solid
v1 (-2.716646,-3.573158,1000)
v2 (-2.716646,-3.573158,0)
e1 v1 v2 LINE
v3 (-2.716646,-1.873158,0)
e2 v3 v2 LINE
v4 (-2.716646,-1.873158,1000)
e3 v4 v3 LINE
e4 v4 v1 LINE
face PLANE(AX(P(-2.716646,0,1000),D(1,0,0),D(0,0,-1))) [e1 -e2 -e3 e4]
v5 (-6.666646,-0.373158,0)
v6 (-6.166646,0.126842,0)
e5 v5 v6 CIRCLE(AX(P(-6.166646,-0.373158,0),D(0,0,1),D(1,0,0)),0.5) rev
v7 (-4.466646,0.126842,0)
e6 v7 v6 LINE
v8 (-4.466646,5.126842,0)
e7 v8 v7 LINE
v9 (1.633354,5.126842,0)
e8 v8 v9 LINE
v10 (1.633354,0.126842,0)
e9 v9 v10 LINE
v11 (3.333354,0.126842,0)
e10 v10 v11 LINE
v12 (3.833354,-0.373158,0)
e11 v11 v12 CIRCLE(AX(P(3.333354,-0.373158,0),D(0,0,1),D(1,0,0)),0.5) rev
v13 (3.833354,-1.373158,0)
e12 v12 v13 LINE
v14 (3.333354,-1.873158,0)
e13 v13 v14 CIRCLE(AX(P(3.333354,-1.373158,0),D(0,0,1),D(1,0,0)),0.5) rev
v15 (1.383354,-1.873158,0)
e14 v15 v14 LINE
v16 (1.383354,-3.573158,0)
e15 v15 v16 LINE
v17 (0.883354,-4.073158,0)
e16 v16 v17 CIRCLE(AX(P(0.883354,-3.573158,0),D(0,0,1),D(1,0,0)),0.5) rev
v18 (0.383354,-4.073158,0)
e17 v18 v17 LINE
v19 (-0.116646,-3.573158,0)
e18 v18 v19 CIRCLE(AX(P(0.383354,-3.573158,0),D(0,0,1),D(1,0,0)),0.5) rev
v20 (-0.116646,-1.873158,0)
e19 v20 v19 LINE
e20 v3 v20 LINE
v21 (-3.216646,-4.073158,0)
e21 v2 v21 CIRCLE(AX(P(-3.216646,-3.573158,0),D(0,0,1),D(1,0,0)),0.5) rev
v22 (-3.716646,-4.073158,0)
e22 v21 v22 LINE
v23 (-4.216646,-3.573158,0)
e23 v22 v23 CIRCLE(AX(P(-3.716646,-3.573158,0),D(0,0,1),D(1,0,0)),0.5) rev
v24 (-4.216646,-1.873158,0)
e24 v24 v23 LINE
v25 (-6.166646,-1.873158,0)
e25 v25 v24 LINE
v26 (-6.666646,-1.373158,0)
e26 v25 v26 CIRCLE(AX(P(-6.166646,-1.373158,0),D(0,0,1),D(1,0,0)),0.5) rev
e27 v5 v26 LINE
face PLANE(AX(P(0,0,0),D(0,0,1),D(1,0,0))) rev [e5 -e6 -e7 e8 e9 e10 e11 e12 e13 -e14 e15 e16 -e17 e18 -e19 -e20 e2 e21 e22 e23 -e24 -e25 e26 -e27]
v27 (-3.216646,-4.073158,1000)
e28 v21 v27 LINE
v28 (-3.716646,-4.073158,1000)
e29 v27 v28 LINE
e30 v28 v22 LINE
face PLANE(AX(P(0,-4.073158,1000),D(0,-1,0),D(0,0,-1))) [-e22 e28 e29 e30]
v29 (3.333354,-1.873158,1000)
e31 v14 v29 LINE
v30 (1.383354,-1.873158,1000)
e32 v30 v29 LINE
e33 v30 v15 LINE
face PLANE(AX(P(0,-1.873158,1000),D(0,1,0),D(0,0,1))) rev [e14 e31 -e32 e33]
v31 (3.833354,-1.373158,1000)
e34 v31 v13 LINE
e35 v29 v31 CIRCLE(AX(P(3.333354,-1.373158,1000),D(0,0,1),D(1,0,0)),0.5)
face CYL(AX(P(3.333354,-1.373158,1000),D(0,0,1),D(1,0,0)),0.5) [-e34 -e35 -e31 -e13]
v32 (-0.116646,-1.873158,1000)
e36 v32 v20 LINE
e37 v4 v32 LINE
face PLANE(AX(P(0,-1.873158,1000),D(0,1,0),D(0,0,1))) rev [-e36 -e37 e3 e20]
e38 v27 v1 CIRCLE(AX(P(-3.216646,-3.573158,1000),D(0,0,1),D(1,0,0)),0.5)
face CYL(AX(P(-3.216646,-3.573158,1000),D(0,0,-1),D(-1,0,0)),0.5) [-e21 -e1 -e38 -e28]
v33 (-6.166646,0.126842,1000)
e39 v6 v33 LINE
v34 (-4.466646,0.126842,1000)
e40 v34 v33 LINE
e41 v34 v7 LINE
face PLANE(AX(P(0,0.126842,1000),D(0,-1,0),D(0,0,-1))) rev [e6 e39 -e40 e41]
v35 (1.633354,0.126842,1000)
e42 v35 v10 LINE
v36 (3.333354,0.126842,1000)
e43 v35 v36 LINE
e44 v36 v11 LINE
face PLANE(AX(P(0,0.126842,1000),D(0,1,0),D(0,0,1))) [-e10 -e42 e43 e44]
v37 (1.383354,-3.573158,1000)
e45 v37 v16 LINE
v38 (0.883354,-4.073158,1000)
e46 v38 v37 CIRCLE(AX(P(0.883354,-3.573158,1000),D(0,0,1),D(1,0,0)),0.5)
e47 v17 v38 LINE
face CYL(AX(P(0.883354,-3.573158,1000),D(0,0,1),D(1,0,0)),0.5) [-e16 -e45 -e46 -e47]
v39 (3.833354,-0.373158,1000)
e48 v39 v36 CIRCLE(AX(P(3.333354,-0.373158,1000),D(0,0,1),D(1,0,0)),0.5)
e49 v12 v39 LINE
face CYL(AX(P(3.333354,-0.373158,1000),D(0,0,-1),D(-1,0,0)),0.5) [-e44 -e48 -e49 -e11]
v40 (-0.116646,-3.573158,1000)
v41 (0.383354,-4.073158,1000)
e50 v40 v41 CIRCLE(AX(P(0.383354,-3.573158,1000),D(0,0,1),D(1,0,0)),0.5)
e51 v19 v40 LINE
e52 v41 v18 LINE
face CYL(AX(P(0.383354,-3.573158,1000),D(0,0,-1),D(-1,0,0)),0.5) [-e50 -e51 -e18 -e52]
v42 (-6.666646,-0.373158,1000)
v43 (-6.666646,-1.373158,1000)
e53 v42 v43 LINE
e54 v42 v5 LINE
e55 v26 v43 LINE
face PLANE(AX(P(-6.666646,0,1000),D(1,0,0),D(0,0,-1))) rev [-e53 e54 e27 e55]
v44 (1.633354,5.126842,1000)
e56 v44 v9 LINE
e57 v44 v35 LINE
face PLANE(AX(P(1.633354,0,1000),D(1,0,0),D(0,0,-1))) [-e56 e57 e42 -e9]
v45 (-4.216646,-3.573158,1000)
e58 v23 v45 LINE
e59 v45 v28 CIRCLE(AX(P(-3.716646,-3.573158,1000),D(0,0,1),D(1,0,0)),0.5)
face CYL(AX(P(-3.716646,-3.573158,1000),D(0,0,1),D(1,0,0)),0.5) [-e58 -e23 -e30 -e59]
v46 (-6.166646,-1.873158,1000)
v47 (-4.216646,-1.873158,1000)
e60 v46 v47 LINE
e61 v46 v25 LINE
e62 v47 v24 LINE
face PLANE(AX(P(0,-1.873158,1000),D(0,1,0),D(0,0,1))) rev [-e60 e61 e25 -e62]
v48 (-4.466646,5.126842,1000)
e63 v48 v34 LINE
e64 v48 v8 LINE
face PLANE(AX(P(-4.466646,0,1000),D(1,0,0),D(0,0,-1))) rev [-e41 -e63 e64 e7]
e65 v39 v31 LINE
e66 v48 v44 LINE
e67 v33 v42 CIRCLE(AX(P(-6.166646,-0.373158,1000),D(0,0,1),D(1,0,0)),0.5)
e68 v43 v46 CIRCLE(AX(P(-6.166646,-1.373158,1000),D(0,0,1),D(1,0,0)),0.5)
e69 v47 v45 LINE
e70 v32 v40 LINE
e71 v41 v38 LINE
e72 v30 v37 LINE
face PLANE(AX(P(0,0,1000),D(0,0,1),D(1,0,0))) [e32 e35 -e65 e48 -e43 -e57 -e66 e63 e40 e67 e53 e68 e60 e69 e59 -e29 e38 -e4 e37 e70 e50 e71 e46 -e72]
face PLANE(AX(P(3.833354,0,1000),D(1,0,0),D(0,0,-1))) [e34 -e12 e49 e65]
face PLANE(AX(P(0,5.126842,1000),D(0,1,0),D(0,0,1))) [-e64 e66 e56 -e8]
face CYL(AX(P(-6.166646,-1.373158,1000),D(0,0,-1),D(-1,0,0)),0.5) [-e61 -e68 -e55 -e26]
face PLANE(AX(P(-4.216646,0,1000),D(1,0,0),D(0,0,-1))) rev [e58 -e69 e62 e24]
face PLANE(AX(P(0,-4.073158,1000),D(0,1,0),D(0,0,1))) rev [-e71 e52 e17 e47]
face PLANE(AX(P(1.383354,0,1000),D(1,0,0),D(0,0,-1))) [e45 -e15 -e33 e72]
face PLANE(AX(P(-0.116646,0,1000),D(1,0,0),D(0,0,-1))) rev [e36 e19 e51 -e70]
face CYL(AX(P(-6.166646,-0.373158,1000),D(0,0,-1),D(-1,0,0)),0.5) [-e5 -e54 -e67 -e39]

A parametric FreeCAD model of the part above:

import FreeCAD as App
import Part
import Sketcher
from FreeCAD import Vector


def edges_at(feature, points):
    """Names of the edges that pass closest to the given points."""
    edges = feature.Shape.Edges
    near = lambda p: min(range(len(edges)), key=lambda i: edges[i].distToShape(Part.Vertex(*p))[0])
    return sorted({f"Edge{near(p) + 1}" for p in points})

doc = App.newDocument("Part")
body = doc.addObject("PartDesign::Body", "Body")

# Sketch on XY plane
sketch1 = body.newObject("Sketcher::SketchObject", "Sketch")
sketch1.AttachmentSupport = (doc.getObject("XY_Plane"), [""])
sketch1.MapMode = "FlatFace"
sketch1.addGeometry([
    Part.LineSegment(Vector(-4.216646, -1.873158, 0), Vector(-4.216646, -4.073158, 0)),  # 0
    Part.LineSegment(Vector(-4.216646, -4.073158, 0), Vector(-2.716646, -4.073158, 0)),  # 1
    Part.LineSegment(Vector(-2.716646, -4.073158, 0), Vector(-2.716646, -1.873158, 0)),  # 2
    Part.LineSegment(Vector(-2.716646, -1.873158, 0), Vector(-0.116646, -1.873158, 0)),  # 3
    Part.LineSegment(Vector(-0.116646, -1.873158, 0), Vector(-0.116646, -4.073158, 0)),  # 4
    Part.LineSegment(Vector(-0.116646, -4.073158, 0), Vector(1.383354, -4.073158, 0)),  # 5
    Part.LineSegment(Vector(1.383354, -4.073158, 0), Vector(1.383354, -1.873158, 0)),  # 6
    Part.LineSegment(Vector(1.383354, -1.873158, 0), Vector(3.833354, -1.873158, 0)),  # 7
    Part.LineSegment(Vector(3.833354, -1.873158, 0), Vector(3.833354, 0.126842, 0)),  # 8
    Part.LineSegment(Vector(3.833354, 0.126842, 0), Vector(1.633354, 0.126842, 0)),  # 9
    Part.LineSegment(Vector(1.633354, 0.126842, 0), Vector(1.633354, 5.126842, 0)),  # 10
    Part.LineSegment(Vector(1.633354, 5.126842, 0), Vector(-4.466646, 5.126842, 0)),  # 11
    Part.LineSegment(Vector(-4.466646, 5.126842, 0), Vector(-4.466646, 0.126842, 0)),  # 12
    Part.LineSegment(Vector(-4.466646, 0.126842, 0), Vector(-6.666646, 0.126842, 0)),  # 13
    Part.LineSegment(Vector(-6.666646, 0.126842, 0), Vector(-6.666646, -1.873158, 0)),  # 14
    Part.LineSegment(Vector(-6.666646, -1.873158, 0), Vector(-4.216646, -1.873158, 0)),  # 15
], False)
sketch1.addConstraint([
    Sketcher.Constraint("Coincident", 0, 2, 1, 1),
    Sketcher.Constraint("Coincident", 1, 2, 2, 1),
    Sketcher.Constraint("Coincident", 2, 2, 3, 1),
    Sketcher.Constraint("Coincident", 3, 2, 4, 1),
    Sketcher.Constraint("Coincident", 4, 2, 5, 1),
    Sketcher.Constraint("Coincident", 5, 2, 6, 1),
    Sketcher.Constraint("Coincident", 6, 2, 7, 1),
    Sketcher.Constraint("Coincident", 7, 2, 8, 1),
    Sketcher.Constraint("Coincident", 8, 2, 9, 1),
    Sketcher.Constraint("Coincident", 9, 2, 10, 1),
    Sketcher.Constraint("Coincident", 10, 2, 11, 1),
    Sketcher.Constraint("Coincident", 11, 2, 12, 1),
    Sketcher.Constraint("Coincident", 12, 2, 13, 1),
    Sketcher.Constraint("Coincident", 13, 2, 14, 1),
    Sketcher.Constraint("Coincident", 14, 2, 15, 1),
    Sketcher.Constraint("Coincident", 15, 2, 0, 1),
    Sketcher.Constraint("Vertical", 0),
    Sketcher.Constraint("Horizontal", 1),
    Sketcher.Constraint("Vertical", 2),
    Sketcher.Constraint("Horizontal", 3),
    Sketcher.Constraint("Vertical", 4),
    Sketcher.Constraint("Horizontal", 5),
    Sketcher.Constraint("Vertical", 6),
    Sketcher.Constraint("Horizontal", 7),
    Sketcher.Constraint("Vertical", 8),
    Sketcher.Constraint("Horizontal", 9),
    Sketcher.Constraint("Vertical", 10),
    Sketcher.Constraint("Horizontal", 11),
    Sketcher.Constraint("Vertical", 12),
    Sketcher.Constraint("Horizontal", 13),
    Sketcher.Constraint("Vertical", 14),
    Sketcher.Constraint("Horizontal", 15),
    Sketcher.Constraint("Horizontal", 1, 2, 4, 2),
    Sketcher.Constraint("Horizontal", 3, 2, 6, 2),
    Sketcher.Constraint("Horizontal", 9, 2, 12, 2),
    Sketcher.Constraint("Horizontal", 7, 2, 14, 2),
    Sketcher.Constraint("Equal", 1, 5),
    Sketcher.Constraint("Equal", 9, 13),
    Sketcher.Constraint("Equal", 7, 15),
    Sketcher.Constraint("Equal", 13, 0),
    Sketcher.Constraint("DistanceY", 8, 1, 8, 2, 2.0),
    Sketcher.Constraint("DistanceY", 10, 1, 10, 2, 5.0),
    Sketcher.Constraint("DistanceX", 1, 1, 1, 2, 1.5),
    Sketcher.Constraint("DistanceX", 3, 1, 3, 2, 2.6),
    Sketcher.Constraint("DistanceX", 9, 2, 9, 1, 2.2),
    Sketcher.Constraint("DistanceX", 11, 2, 11, 1, 6.1),
    Sketcher.Constraint("DistanceX", 0, 2, -1, 1, 4.216646),
    Sketcher.Constraint("DistanceY", 0, 2, -1, 1, 4.073158),
])
pad1 = body.newObject("PartDesign::Pad", "Pad")
pad1.Profile = sketch1
pad1.Length = 1000
doc.recompute()

fillet = body.newObject("PartDesign::Fillet", "Fillet")
fillet.Base = (pad1, edges_at(pad1, [
    (3.833, 0.127, 500),
    (3.833, -1.873, 500),
    (-6.667, -1.873, 500),
    (-6.667, 0.127, 500),
]))
fillet.Radius = 0.5
doc.recompute()

fillet2 = body.newObject("PartDesign::Fillet", "Fillet001")
fillet2.Base = (fillet, edges_at(fillet, [
    (1.383, -4.073, 500),
    (-0.117, -4.073, 500),
    (-2.717, -4.073, 500),
    (-4.217, -4.073, 500),
]))
fillet2.Radius = 0.5

doc.recompute()
